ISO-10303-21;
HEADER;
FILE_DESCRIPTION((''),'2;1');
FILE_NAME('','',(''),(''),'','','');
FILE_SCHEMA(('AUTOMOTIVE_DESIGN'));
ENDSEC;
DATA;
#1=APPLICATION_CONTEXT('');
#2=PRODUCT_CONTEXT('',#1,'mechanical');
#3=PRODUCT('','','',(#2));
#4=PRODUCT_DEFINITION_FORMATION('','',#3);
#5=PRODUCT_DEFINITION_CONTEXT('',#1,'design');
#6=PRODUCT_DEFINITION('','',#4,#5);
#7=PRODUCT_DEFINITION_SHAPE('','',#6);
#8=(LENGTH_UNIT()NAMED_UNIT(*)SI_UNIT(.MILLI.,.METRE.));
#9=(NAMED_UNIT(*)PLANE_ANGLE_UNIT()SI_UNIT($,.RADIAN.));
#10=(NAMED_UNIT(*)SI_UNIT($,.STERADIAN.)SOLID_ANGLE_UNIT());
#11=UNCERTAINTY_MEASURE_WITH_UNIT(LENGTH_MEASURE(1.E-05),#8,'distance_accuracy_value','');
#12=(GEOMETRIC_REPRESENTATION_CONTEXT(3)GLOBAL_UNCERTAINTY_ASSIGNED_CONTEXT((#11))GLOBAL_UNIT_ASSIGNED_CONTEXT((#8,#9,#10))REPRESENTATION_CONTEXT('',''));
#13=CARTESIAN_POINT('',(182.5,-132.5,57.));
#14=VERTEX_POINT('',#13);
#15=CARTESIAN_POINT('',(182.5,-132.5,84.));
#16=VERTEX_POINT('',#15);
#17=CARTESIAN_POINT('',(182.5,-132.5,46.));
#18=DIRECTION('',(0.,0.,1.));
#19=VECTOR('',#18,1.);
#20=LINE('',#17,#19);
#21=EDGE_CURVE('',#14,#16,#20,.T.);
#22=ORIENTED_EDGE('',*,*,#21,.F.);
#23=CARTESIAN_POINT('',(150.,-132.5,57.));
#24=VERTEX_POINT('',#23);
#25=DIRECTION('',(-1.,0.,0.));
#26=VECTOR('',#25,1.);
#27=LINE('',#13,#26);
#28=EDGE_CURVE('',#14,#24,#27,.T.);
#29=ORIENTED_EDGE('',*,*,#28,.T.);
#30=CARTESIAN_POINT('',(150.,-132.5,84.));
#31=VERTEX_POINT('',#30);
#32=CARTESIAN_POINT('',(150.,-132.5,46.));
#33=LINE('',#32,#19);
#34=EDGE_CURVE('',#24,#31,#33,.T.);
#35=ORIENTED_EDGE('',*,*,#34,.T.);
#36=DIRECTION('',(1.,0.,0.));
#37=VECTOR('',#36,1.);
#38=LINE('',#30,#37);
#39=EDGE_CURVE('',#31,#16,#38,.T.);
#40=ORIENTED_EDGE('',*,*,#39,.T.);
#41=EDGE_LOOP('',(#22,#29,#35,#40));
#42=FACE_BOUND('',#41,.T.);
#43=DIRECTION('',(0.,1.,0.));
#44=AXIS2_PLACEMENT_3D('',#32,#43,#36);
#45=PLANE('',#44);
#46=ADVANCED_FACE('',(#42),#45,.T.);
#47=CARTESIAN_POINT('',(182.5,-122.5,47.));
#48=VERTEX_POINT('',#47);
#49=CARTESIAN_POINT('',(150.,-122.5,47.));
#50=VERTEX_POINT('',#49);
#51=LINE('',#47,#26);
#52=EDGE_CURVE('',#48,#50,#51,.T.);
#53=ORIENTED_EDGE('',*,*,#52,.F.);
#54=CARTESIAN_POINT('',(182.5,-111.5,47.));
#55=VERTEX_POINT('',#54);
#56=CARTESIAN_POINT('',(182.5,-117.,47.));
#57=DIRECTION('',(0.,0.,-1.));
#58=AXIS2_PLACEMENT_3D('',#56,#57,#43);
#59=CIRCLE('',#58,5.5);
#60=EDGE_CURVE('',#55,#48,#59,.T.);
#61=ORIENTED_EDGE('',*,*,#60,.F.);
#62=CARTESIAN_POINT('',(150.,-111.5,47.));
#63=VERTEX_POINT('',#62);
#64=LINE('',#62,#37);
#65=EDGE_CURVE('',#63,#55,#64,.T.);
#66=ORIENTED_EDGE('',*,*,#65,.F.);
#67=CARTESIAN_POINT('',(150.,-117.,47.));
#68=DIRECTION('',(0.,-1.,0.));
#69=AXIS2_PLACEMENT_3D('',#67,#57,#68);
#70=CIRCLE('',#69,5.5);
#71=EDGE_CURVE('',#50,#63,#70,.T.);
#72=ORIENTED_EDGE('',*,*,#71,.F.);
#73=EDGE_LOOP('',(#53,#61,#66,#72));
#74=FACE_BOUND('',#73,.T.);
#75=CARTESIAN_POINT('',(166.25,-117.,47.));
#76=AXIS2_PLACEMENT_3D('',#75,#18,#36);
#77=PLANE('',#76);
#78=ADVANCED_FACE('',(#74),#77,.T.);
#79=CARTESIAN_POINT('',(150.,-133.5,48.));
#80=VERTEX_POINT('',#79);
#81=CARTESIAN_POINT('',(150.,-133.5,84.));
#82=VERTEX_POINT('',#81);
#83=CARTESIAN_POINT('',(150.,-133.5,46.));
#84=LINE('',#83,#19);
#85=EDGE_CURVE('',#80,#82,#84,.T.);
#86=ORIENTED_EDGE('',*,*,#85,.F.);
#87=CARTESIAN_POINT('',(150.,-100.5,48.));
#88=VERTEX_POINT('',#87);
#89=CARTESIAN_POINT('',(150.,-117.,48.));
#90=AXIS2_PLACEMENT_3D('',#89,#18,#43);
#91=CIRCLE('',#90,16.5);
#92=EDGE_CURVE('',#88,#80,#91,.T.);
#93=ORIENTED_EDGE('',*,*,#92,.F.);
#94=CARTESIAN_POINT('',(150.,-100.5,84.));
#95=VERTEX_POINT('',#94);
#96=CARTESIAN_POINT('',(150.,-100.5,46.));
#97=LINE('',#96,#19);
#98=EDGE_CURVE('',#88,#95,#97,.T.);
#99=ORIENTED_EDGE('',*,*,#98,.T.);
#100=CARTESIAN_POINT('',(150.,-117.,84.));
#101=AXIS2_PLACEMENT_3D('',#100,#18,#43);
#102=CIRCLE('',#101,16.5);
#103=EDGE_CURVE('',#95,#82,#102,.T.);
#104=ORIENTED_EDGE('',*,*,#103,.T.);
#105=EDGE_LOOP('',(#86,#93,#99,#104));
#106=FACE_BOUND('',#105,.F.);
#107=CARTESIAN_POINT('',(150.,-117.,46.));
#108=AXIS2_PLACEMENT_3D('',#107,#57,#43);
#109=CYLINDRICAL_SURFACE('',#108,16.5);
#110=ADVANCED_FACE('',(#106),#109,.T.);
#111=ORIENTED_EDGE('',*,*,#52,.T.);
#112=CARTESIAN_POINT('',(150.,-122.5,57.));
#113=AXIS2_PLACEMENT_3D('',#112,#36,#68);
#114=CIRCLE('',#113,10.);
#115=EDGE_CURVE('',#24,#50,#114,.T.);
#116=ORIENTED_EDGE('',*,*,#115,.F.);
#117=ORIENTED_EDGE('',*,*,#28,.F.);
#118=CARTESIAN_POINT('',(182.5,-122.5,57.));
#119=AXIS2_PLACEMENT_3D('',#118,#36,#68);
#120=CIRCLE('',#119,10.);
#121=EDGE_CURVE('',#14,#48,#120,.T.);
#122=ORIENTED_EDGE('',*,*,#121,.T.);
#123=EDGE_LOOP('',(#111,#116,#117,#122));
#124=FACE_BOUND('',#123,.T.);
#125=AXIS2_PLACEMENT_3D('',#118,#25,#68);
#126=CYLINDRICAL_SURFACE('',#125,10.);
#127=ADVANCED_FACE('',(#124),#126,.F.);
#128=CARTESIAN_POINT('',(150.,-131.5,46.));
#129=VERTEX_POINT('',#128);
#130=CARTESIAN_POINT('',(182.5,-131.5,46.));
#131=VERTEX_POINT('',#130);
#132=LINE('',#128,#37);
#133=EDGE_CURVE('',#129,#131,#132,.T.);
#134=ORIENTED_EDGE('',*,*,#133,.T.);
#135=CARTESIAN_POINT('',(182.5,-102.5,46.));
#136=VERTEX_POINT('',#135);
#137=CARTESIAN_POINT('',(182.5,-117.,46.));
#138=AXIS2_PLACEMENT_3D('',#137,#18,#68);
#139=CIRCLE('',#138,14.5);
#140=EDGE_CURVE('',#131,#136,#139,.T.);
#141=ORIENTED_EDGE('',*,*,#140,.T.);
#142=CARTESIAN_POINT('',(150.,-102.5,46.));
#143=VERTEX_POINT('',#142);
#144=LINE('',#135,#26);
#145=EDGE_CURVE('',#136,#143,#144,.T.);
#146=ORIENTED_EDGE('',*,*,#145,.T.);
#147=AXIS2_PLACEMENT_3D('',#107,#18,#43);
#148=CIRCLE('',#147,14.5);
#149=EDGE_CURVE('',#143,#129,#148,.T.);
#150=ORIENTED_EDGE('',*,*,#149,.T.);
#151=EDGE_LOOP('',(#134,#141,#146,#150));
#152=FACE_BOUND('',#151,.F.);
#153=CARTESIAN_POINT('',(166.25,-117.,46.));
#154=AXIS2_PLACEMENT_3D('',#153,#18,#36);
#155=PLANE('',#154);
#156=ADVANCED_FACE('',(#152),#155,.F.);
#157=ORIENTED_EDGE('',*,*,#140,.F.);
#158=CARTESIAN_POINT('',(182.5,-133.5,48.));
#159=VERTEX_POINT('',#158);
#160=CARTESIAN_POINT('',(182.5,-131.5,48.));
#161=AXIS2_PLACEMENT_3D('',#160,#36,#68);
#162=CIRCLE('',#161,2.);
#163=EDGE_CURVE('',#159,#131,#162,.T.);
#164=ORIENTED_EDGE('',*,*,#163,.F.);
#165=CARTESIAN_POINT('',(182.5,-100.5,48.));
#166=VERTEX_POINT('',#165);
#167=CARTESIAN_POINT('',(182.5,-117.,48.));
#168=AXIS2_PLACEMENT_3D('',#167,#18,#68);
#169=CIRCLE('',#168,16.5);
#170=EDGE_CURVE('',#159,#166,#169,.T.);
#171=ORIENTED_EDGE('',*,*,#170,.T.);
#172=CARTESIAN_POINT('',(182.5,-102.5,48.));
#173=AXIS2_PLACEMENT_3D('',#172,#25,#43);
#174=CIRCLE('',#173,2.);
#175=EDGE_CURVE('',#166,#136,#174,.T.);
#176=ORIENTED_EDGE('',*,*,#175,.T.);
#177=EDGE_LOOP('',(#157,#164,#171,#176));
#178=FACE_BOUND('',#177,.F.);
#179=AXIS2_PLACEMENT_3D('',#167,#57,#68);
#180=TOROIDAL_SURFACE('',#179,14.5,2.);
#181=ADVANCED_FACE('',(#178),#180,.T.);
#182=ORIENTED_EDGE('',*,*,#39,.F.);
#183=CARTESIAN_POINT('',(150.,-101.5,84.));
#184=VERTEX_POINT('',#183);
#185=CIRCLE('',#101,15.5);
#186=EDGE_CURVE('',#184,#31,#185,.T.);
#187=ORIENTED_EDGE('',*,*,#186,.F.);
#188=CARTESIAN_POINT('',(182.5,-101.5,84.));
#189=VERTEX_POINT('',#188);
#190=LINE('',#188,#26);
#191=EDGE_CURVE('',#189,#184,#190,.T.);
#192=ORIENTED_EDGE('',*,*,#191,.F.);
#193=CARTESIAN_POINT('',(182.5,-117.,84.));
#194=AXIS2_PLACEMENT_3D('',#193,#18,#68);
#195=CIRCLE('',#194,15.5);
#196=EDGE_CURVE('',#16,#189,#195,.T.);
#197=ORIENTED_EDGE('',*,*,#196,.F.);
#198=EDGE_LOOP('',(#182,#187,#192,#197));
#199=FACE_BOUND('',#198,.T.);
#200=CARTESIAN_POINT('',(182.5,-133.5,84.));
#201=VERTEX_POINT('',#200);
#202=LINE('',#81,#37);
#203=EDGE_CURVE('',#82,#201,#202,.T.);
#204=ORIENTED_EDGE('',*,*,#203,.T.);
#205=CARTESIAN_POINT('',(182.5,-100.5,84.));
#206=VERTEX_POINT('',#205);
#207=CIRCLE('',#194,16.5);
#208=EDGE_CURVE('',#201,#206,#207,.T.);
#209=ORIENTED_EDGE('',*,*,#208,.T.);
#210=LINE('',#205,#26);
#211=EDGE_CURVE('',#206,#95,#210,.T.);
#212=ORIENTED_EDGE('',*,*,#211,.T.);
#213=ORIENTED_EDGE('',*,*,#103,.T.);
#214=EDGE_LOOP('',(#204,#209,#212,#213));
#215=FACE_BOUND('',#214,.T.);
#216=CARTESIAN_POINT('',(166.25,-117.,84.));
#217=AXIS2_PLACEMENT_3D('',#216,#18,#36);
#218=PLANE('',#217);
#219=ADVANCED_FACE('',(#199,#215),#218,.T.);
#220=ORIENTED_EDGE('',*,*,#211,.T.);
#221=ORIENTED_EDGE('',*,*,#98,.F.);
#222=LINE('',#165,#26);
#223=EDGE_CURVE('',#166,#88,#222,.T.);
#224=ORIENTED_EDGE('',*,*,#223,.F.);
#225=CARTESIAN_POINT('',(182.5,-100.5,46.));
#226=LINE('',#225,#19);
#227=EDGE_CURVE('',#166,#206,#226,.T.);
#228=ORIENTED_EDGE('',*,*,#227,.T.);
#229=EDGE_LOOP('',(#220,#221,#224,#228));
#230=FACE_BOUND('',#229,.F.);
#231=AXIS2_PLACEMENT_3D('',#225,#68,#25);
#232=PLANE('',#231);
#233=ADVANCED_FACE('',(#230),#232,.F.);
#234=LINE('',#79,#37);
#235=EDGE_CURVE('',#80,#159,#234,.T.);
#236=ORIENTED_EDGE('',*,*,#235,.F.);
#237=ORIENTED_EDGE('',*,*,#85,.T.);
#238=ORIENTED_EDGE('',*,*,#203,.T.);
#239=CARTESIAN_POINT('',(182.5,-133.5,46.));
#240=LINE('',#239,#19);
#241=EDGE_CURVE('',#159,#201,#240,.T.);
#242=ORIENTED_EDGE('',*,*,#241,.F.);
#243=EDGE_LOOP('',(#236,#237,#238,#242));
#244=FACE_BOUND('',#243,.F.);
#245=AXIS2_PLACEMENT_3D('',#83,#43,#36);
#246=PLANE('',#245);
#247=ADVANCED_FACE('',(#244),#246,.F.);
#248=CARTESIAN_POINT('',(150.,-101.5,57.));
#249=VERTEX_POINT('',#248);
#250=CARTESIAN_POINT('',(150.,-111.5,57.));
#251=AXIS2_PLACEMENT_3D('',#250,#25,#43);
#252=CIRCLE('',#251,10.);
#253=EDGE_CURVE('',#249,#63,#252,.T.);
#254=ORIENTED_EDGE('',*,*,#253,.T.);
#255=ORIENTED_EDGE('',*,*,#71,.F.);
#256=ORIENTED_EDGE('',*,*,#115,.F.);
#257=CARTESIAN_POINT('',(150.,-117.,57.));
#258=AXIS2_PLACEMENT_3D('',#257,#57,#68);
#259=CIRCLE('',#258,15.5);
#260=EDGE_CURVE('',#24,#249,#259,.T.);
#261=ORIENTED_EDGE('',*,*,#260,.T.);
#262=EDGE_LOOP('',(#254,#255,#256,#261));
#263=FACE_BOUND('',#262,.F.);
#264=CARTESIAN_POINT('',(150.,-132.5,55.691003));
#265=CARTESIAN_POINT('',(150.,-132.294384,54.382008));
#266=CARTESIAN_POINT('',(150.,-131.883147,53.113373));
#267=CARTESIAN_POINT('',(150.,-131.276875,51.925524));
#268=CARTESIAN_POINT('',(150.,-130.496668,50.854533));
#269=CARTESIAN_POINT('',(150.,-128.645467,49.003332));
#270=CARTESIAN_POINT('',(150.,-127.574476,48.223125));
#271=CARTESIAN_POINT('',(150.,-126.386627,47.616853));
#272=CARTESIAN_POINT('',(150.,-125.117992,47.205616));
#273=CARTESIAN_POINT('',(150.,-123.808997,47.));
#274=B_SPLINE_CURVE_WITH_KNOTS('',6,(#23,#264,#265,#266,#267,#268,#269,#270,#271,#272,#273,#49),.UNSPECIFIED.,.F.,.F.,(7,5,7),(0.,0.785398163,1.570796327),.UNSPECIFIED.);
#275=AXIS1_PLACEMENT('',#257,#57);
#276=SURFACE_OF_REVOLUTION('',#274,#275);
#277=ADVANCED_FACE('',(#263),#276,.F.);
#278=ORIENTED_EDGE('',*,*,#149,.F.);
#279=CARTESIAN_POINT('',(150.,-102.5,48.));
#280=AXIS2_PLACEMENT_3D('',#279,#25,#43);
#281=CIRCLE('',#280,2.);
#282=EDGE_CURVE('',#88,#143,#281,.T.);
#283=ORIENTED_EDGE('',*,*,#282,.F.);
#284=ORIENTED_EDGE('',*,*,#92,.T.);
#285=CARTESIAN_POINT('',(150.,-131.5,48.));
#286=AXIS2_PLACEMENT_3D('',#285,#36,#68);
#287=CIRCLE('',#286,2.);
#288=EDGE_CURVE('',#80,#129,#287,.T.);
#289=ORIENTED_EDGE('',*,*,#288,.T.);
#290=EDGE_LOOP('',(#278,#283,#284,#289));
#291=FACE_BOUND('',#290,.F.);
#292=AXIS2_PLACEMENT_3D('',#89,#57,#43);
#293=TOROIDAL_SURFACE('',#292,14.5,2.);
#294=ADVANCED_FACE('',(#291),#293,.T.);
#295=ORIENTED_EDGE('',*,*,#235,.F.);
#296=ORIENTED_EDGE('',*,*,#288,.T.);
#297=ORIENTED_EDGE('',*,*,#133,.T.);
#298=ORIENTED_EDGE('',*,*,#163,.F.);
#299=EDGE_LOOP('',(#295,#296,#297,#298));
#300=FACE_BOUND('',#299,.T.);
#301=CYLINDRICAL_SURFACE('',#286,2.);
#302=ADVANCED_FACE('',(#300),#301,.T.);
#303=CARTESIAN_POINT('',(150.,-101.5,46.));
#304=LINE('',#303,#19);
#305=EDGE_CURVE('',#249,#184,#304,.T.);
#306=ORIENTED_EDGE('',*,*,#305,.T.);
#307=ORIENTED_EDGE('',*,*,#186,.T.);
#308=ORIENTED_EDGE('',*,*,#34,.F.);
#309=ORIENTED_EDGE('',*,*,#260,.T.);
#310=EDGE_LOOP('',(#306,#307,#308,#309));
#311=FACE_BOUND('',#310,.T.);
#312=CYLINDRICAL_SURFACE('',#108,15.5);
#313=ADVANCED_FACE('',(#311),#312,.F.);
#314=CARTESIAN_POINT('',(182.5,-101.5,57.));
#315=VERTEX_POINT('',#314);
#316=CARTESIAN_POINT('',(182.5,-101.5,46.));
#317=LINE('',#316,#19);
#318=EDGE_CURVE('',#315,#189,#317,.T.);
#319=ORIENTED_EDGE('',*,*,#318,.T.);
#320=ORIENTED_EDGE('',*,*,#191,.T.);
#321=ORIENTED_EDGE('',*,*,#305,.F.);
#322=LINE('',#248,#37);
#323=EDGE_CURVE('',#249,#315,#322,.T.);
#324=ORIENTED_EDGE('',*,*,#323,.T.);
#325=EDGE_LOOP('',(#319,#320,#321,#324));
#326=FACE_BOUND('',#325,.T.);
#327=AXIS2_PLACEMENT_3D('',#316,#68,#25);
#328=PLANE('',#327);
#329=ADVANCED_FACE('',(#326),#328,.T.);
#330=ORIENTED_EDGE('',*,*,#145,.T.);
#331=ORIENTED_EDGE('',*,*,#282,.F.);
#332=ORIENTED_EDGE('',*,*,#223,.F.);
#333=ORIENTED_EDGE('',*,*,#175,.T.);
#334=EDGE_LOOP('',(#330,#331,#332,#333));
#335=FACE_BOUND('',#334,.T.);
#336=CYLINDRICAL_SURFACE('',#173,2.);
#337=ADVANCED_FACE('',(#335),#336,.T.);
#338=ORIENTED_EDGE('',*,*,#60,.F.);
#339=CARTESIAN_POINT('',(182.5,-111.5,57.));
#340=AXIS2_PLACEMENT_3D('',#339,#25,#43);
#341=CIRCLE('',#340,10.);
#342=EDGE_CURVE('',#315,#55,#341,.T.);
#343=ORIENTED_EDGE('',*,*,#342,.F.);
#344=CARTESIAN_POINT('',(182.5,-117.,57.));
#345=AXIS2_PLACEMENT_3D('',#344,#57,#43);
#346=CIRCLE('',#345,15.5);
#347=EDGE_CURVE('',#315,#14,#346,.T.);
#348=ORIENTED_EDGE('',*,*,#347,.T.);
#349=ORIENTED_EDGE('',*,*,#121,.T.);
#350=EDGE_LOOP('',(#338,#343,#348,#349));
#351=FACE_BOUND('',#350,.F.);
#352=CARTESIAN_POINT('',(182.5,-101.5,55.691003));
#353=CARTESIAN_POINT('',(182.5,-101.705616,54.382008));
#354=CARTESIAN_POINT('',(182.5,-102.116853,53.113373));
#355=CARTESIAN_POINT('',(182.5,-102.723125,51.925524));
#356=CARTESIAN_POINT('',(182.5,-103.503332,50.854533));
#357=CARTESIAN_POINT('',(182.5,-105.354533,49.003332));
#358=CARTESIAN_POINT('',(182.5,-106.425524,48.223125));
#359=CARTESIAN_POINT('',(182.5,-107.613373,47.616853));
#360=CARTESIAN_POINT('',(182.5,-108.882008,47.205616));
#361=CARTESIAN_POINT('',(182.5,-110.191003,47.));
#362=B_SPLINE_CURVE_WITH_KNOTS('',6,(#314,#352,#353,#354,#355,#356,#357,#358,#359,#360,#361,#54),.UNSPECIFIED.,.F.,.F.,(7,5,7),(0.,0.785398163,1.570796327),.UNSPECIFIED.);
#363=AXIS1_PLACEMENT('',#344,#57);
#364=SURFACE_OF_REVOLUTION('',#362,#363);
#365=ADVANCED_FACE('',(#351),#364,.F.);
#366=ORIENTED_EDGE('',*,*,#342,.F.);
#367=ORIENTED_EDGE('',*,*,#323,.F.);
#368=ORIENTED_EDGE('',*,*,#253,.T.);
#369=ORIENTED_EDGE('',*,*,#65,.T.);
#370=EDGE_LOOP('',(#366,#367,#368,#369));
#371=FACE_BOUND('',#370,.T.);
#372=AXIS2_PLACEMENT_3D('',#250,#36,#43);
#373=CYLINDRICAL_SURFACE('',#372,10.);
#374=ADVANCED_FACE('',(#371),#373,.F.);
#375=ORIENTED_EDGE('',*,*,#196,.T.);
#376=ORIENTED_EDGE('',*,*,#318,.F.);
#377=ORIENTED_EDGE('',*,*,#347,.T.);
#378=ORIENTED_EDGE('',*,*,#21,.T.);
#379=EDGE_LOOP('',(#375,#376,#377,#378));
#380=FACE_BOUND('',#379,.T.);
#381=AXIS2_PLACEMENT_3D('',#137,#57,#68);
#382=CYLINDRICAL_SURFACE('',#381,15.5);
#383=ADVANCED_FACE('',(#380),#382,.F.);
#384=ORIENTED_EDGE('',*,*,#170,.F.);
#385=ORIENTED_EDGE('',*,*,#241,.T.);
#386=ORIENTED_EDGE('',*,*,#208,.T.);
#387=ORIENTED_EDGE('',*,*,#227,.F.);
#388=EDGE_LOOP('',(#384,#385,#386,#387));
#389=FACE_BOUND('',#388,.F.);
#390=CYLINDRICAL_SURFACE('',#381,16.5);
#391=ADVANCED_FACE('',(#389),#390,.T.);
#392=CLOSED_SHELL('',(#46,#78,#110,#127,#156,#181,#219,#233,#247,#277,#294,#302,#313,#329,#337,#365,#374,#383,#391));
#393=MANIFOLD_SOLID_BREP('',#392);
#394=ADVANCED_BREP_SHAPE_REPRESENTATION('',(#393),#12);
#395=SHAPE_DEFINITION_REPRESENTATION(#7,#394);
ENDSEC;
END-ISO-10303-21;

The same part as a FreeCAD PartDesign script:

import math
import FreeCAD as App
import Part
import Sketcher


def edges_at(feature, points):
    """Names of the edges that pass closest to the given points."""
    edges = feature.Shape.Edges
    near = lambda p: min(range(len(edges)), key=lambda i: edges[i].distToShape(Part.Vertex(*p))[0])
    return sorted({f"Edge{near(p) + 1}" for p in points})


def faces_at(feature, points):
    """Names of the faces that lie closest to the given points."""
    faces = feature.Shape.Faces
    near = lambda p: min(range(len(faces)), key=lambda i: faces[i].distToShape(Part.Vertex(*p))[0])
    return sorted({f"Face{near(p) + 1}" for p in points})

doc = App.newDocument("Part")
params = doc.addObject("Spreadsheet::Sheet", "Params")
for row, (alias, value) in enumerate([
    ("sketch1_radius", "16.5 mm"),
    ("sketch1_width", "32.5 mm"),
    ("pad1_length", "38 mm"),
    ("thickness_wall", "1 mm"),
    ("fillet_radius", "10 mm"),
    ("fillet2_radius", "2 mm"),
], start=1):
    params.set(f"A{row}", alias)
    params.set(f"B{row}", "=" + value)
    params.setAlias(f"B{row}", alias)

body = doc.addObject("PartDesign::Body", "Body")

# Sketch on XY plane
sketch1 = body.newObject("Sketcher::SketchObject", "Sketch")
sketch1.AttachmentSupport = (doc.getObject("XY_Plane"), [""])
sketch1.MapMode = "FlatFace"
sketch1.addGeometry([
    Part.ArcOfCircle(Part.Circle(App.Vector(-83, 56, 0), App.Vector(0, 0, 1), 16), math.radians(90), math.radians(270)),
    Part.LineSegment(App.Vector(-83, 40, 0), App.Vector(-50, 40, 0)),
    Part.ArcOfCircle(Part.Circle(App.Vector(-50, 56, 0), App.Vector(0, 0, 1), 16), math.radians(-90), math.radians(90)),
    Part.LineSegment(App.Vector(-50, 72, 0), App.Vector(-83, 72, 0)),
], False)
sketch1.addConstraint([
    Sketcher.Constraint("Tangent", 0, 2, 1, 1),
    Sketcher.Constraint("Tangent", 1, 2, 2, 1),
    Sketcher.Constraint("Tangent", 2, 2, 3, 1),
    Sketcher.Constraint("Tangent", 3, 2, 0, 1),
    Sketcher.Constraint("Horizontal", 1),
    Sketcher.Constraint("Horizontal", 3),
    Sketcher.Constraint("Radius", 0, 16.5),
    Sketcher.Constraint("DistanceX", 1, 1, 1, 2, 32.5),
    Sketcher.Constraint("DistanceX", 0, 3, -1, 1, 83.0),
    Sketcher.Constraint("DistanceY", -1, 1, 0, 3, 56.0),
])
sketch1.setExpression("Constraints[6]", "Params.sketch1_radius")
sketch1.setExpression("Constraints[7]", "Params.sketch1_width")
pad1 = body.newObject("PartDesign::Pad", "Pad")
pad1.Profile = sketch1
pad1.setExpression("Length", "Params.pad1_length")
doc.recompute()

thickness = body.newObject("PartDesign::Thickness", "Thickness")
thickness.Base = (pad1, faces_at(pad1, [(-66.75, 56, 38)]))
thickness.setExpression("Value", "Params.thickness_wall")
thickness.Reversed = True
thickness.Join = "Arc"
doc.recompute()

fillet = body.newObject("PartDesign::Fillet", "Fillet")
fillet.Base = (thickness, edges_at(thickness, [
    (-98.5, 56, 1),
    (-66.75, 40.5, 1),
    (-35, 56, 1),
    (-66.75, 71.5, 1),
]))
fillet.setExpression("Radius", "Params.fillet_radius")
doc.recompute()

fillet2 = body.newObject("PartDesign::Fillet", "Fillet001")
fillet2.Base = (fillet, edges_at(fillet, [
    (-99.5, 56, 0),
    (-66.75, 39.5, 0),
    (-34, 56, 0),
    (-66.75, 72.5, 0),
]))
fillet2.setExpression("Radius", "Params.fillet2_radius")
body2 = doc.addObject("PartDesign::Body", "Body001")
doc.recompute()

body.Placement = App.Placement(App.Vector(233, -173, 46), App.Rotation(App.Vector(0, 0, 1), 0))
boolean = body2.newObject("PartDesign::Boolean", "Boolean")
boolean.Type = "Fuse"
boolean.addObjects([body])

doc.recompute()
